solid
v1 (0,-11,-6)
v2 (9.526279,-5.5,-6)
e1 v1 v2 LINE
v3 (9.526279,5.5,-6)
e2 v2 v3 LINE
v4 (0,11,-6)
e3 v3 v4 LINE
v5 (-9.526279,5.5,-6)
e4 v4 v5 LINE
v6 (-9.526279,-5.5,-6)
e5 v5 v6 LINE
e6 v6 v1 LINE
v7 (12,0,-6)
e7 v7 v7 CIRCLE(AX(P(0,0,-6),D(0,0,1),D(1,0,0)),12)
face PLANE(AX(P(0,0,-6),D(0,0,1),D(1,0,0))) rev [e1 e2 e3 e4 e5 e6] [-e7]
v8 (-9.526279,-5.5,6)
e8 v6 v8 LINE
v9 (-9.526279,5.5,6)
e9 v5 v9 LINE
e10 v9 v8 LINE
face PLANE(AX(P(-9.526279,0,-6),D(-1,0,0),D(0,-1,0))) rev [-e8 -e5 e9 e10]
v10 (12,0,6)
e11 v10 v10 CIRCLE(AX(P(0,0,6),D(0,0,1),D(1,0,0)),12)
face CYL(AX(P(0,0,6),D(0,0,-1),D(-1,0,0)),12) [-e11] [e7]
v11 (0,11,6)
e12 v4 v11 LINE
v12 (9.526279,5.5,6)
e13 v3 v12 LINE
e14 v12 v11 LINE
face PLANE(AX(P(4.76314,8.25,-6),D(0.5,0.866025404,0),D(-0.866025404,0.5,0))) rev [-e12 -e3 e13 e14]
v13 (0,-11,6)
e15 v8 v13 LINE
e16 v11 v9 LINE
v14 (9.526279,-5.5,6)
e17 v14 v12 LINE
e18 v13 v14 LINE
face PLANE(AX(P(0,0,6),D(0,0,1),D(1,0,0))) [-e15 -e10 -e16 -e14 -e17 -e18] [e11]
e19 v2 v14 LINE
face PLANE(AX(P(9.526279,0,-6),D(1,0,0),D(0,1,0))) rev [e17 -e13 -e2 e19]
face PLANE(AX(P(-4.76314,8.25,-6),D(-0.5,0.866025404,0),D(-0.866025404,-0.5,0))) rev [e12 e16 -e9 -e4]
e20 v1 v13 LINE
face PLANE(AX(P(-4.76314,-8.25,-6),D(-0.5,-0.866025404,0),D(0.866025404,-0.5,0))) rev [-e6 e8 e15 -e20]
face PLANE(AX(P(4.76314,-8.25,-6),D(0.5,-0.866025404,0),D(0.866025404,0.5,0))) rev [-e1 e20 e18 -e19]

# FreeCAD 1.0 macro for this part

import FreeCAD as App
import Part
import Sketcher
from FreeCAD import Vector
Q = App.Units.Quantity

doc = App.newDocument("Part")
params = doc.addObject("Spreadsheet::Sheet", "Params")
for row, (alias, value) in enumerate([
    ("sketch1_diameter", "24 mm"),
    ("sketch1_diameter2", "12.8 mm"),
    ("pad1_length", "12 mm"),
    ("sketch2_diameter", "12.8 mm"),
    ("sketch2_height", "11 mm"),
    ("sketch2_length", "11 mm"),
], start=1):
    params.set(f"A{row}", alias)
    params.set(f"B{row}", "=" + value)
    params.setAlias(f"B{row}", alias)

body = doc.addObject("PartDesign::Body", "Body")

# Sketch on XY plane
sketch1 = body.newObject("Sketcher::SketchObject", "Sketch")
sketch1.AttachmentSupport = (doc.getObject("XY_Plane"), [""])
sketch1.MapMode = "FlatFace"
sketch1.addGeometry([
    Part.Circle(Vector(0, 0, 0), Vector(0, 0, 1), 12),
    Part.Circle(Vector(0, 0, 0), Vector(0, 0, 1), 6),
], False)
sketch1.addConstraint([
    Sketcher.Constraint("Coincident", 0, 3, -1, 1),
    Sketcher.Constraint("Coincident", 1, 3, -1, 1),
    Sketcher.Constraint("Diameter", 0, Q("24 mm")),
    Sketcher.Constraint("Diameter", 1, Q("12.8 mm")),
])
sketch1.setExpression("Constraints[2]", "Params.sketch1_diameter")
sketch1.setExpression("Constraints[3]", "Params.sketch1_diameter2")
pad1 = body.newObject("PartDesign::Pad", "Pad")
pad1.Profile = sketch1
pad1.setExpression("Length", "Params.pad1_length")
pad1.Midplane = True

# Sketch on XY plane
sketch2 = body.newObject("Sketcher::SketchObject", "Sketch001")
sketch2.AttachmentSupport = (doc.getObject("XY_Plane"), [""])
sketch2.MapMode = "FlatFace"
sketch2.addGeometry([
    Part.LineSegment(Vector(-10, 6, 0), Vector(-10, -6, 0)),  # 0
    Part.LineSegment(Vector(-10, -6, 0), Vector(0, -11, 0)),  # 1
    Part.LineSegment(Vector(0, -11, 0), Vector(10, -6, 0)),  # 2
    Part.LineSegment(Vector(10, -6, 0), Vector(10, 6, 0)),  # 3
    Part.LineSegment(Vector(10, 6, 0), Vector(0, 11, 0)),  # 4
    Part.LineSegment(Vector(0, 11, 0), Vector(-10, 6, 0)),  # 5
    Part.Circle(Vector(0, 0, 0), Vector(0, 0, 1), 6),  # 6
], False)
sketch2.addConstraint([
    Sketcher.Constraint("Coincident", 0, 2, 1, 1),
    Sketcher.Constraint("Coincident", 1, 2, 2, 1),
    Sketcher.Constraint("Coincident", 2, 2, 3, 1),
    Sketcher.Constraint("Coincident", 3, 2, 4, 1),
    Sketcher.Constraint("Coincident", 4, 2, 5, 1),
    Sketcher.Constraint("Coincident", 5, 2, 0, 1),
    Sketcher.Constraint("Vertical", 0),
    Sketcher.Constraint("Vertical", 3),
    Sketcher.Constraint("Coincident", 6, 3, -1, 1),
    Sketcher.Constraint("Symmetric", 0, 2, 3, 2, -1, 1),
    Sketcher.Constraint("Symmetric", 1, 2, 4, 2, -1, 1),
    Sketcher.Constraint("PointOnObject", 1, 2, -2),
    Sketcher.Constraint("Parallel", 2, 5),
    Sketcher.Constraint("Horizontal", 0, 2, 2, 2),
    Sketcher.Constraint("Diameter", 6, Q("12.8 mm")),
    Sketcher.Constraint("DistanceY", 0, 2, 0, 1, Q("11 mm")),
    Sketcher.Constraint("Angle", 1, Q("-30 deg")),
    Sketcher.Constraint("Distance", 1, Q("11 mm")),
])
sketch2.setExpression("Constraints[14]", "Params.sketch2_diameter")
sketch2.setExpression("Constraints[15]", "Params.sketch2_height")
sketch2.setExpression("Constraints[17]", "Params.sketch2_length")
pocket1 = body.newObject("PartDesign::Pocket", "Pocket")
pocket1.Profile = sketch2
pocket1.Type = "ThroughAll"
pocket1.Midplane = True

doc.recompute()
